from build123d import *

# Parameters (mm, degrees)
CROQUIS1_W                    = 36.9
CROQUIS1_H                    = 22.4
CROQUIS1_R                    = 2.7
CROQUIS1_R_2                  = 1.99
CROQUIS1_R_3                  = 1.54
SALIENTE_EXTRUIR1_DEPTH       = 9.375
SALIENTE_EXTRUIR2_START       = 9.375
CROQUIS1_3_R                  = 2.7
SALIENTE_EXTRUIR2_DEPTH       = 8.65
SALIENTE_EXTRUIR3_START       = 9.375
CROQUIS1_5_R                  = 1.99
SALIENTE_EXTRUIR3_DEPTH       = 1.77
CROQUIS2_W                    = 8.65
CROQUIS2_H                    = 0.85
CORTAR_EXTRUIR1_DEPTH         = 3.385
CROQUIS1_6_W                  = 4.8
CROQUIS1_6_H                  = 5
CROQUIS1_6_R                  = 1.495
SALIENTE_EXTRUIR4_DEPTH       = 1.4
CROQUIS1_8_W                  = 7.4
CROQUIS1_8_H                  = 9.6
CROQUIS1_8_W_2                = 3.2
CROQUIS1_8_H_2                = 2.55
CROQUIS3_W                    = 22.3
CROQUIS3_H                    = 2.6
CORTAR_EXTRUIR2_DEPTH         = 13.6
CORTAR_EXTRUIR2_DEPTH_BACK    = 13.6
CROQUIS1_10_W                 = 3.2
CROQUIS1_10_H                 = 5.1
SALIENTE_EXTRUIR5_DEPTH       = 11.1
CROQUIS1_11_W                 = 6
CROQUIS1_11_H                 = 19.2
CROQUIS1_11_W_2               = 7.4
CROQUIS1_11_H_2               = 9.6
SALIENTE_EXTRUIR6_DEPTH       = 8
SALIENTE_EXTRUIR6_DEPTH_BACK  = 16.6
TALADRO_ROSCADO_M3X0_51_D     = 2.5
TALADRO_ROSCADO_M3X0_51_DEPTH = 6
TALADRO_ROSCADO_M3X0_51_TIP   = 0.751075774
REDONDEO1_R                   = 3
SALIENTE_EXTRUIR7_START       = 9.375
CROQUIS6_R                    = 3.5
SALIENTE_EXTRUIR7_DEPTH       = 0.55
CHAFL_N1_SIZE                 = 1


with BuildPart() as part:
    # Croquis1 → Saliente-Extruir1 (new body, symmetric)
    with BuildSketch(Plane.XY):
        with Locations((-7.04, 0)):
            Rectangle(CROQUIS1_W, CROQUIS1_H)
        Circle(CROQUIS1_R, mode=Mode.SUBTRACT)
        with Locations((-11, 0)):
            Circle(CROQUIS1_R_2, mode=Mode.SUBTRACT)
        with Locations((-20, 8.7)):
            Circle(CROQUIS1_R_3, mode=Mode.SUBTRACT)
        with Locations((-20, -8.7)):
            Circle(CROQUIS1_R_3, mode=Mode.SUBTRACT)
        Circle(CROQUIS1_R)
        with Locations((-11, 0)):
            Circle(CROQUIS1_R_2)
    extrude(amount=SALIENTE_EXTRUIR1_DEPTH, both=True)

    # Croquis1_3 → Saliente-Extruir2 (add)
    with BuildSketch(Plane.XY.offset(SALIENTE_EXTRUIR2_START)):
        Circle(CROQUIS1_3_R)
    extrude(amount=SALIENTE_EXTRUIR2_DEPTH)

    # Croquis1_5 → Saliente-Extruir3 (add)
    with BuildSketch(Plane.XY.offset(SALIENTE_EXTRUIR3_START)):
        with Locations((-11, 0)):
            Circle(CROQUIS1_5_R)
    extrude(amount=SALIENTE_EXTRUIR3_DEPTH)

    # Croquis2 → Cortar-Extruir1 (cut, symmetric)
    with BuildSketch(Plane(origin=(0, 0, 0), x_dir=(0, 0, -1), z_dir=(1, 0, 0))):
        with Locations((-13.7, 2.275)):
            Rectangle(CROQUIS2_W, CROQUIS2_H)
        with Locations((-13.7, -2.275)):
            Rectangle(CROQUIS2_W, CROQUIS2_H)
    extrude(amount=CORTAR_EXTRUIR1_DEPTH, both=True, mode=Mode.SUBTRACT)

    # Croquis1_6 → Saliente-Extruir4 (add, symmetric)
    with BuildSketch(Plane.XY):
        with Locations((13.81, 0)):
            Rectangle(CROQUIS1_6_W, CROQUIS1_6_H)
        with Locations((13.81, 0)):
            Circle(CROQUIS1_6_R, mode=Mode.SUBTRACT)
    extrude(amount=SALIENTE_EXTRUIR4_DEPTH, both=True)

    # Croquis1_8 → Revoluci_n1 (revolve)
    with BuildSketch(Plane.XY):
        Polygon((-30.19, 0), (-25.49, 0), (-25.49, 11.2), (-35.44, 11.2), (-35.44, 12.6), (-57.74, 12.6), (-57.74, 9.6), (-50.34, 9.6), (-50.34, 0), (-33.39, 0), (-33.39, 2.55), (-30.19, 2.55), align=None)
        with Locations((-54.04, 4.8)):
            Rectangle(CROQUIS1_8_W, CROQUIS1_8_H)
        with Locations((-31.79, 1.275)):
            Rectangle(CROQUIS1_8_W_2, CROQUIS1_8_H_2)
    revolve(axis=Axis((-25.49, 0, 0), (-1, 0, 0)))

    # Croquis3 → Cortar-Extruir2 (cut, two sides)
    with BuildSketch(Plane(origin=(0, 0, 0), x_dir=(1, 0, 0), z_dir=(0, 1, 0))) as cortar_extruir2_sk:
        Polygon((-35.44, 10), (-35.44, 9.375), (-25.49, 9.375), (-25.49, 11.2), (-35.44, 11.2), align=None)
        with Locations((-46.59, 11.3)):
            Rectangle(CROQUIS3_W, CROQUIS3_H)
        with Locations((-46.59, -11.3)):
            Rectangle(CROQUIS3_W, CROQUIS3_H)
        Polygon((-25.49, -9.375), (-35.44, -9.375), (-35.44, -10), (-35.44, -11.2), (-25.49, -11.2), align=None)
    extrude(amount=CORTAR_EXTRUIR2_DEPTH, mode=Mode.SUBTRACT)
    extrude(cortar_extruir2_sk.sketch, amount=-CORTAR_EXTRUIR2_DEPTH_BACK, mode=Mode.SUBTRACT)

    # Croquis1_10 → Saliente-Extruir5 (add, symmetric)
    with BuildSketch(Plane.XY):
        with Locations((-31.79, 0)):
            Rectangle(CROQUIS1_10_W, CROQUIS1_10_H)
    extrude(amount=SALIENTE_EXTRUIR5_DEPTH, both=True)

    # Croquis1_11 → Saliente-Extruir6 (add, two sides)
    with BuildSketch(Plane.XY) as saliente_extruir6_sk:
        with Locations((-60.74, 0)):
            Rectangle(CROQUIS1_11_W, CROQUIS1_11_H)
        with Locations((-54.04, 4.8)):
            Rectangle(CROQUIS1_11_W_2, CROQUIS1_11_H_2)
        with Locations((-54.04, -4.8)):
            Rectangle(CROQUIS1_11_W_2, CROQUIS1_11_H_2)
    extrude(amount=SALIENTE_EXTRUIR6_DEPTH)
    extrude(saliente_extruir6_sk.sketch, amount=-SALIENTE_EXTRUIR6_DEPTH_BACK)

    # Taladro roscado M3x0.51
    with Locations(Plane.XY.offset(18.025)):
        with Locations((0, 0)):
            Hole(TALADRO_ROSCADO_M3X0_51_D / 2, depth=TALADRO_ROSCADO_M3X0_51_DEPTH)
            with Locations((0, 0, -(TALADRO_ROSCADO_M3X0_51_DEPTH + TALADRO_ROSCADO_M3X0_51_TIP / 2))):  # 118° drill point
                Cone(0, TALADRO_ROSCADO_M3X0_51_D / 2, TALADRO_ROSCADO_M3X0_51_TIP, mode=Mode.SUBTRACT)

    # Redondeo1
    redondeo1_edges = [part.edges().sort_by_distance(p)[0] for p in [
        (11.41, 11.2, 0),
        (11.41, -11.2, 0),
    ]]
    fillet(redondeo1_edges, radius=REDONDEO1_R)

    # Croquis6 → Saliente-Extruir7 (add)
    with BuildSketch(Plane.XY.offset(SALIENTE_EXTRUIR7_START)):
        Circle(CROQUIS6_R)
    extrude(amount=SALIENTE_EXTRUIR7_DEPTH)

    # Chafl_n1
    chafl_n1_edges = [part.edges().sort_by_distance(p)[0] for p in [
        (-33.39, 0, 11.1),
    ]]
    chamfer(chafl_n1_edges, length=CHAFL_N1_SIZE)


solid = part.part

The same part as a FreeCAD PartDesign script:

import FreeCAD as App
import Part
import Sketcher

V = App.Vector
Q = App.Units.Quantity


def edges_at(feature, points):
    """Names of the edges that pass closest to the given points."""
    edges = feature.Shape.Edges
    near = lambda p: min(range(len(edges)), key=lambda i: edges[i].distToShape(Part.Vertex(*p))[0])
    return sorted({f"Edge{near(p) + 1}" for p in points})


def add_polygon(sketch, points):
    """Adds a closed chain of lines whose ends are joined by coincident constraints."""
    first, n = sketch.GeometryCount, len(points)
    for a, b in zip(points, points[1:] + points[:1]):
        sketch.addGeometry(Part.LineSegment(App.Vector(*a, 0), App.Vector(*b, 0)), False)
    for i in range(n):
        sketch.addConstraint(Sketcher.Constraint("Coincident", first + i, 2, first + (i + 1) % n, 1))

doc = App.newDocument("Part")
body = doc.addObject("PartDesign::Body", "Body")

sketch1 = body.newObject("Sketcher::SketchObject", "Sketch")
sketch1.AttachmentSupport = (doc.getObject("XY_Plane"), [""])
sketch1.MapMode = "FlatFace"
add_polygon(sketch1, [(-25.5, 11.2), (-25.5, -11.2), (11.4, -11.2), (11.4, 11.2)])
sketch1.addGeometry(Part.Circle(V(-20, -8.7, 0), V(0, 0, 1), 1.5), False)
sketch1.addGeometry(Part.Circle(V(-20, 8.7, 0), V(0, 0, 1), 1.5), False)
sketch1.addConstraint([
    Sketcher.Constraint("Vertical", 0),
    Sketcher.Constraint("Horizontal", 1),
    Sketcher.Constraint("Vertical", 2),
    Sketcher.Constraint("Horizontal", 3),
    Sketcher.Constraint("Equal", 4, 5),
    Sketcher.Constraint("Symmetric", 4, 3, 5, 3, -1),
    Sketcher.Constraint("Diameter", 4, Q("3.08 mm")),
    Sketcher.Constraint("DistanceX", 1, 1, 1, 2, Q("36.9 mm")),
    Sketcher.Constraint("DistanceY", 0, 2, 0, 1, Q("22.4 mm")),
    Sketcher.Constraint("DistanceX", 4, 3, -1, 1, Q("20 mm")),
    Sketcher.Constraint("DistanceY", 4, 3, -1, 1, Q("8.7 mm")),
    Sketcher.Constraint("DistanceY", 0, 2, -1, 1, Q("11.2 mm")),
    Sketcher.Constraint("DistanceX", 0, 2, -1, 1, Q("25.49 mm")),
])
pad1 = body.newObject("PartDesign::Pad", "Pad")
pad1.Profile = sketch1
pad1.Length = 18.75
pad1.Midplane = True

sketch2 = body.newObject("Sketcher::SketchObject", "Sketch001")
sketch2.AttachmentSupport = (doc.getObject("XY_Plane"), [""])
sketch2.MapMode = "FlatFace"
sketch2.AttachmentOffset = App.Placement(V(0, 0, 9.375), App.Rotation())
sketch2.addGeometry(Part.Circle(V(0, 0, 0), V(0, 0, 1), 2.7), False)
sketch2.addConstraint([
    Sketcher.Constraint("Coincident", 0, 3, -1, 1),
    Sketcher.Constraint("Diameter", 0, Q("5.4 mm")),
])
pad2 = body.newObject("PartDesign::Pad", "Pad001")
pad2.Profile = sketch2
pad2.Length = 8.65

sketch3 = body.newObject("Sketcher::SketchObject", "Sketch002")
sketch3.AttachmentSupport = (doc.getObject("XY_Plane"), [""])
sketch3.MapMode = "FlatFace"
sketch3.AttachmentOffset = App.Placement(V(0, 0, 9.375), App.Rotation())
sketch3.addGeometry(Part.Circle(V(-11, 0, 0), V(0, 0, 1), 2), False)
sketch3.addConstraint([
    Sketcher.Constraint("PointOnObject", 0, 3, -1),
    Sketcher.Constraint("Diameter", 0, Q("3.98 mm")),
    Sketcher.Constraint("DistanceX", 0, 3, -1, 1, Q("11 mm")),
])
pad3 = body.newObject("PartDesign::Pad", "Pad002")
pad3.Profile = sketch3
pad3.Length = 1.77

sketch4 = body.newObject("Sketcher::SketchObject", "Sketch003")
sketch4.AttachmentSupport = (doc.getObject("YZ_Plane"), [""])
sketch4.MapMode = "FlatFace"
add_polygon(sketch4, [(2.7, 18), (1.9, 18), (1.9, 9.4), (2.7, 9.4)])
add_polygon(sketch4, [(-1.9, 18), (-2.7, 18), (-2.7, 9.4), (-1.9, 9.4)])
sketch4.addConstraint([
    Sketcher.Constraint("Horizontal", 0),
    Sketcher.Constraint("Vertical", 1),
    Sketcher.Constraint("Horizontal", 2),
    Sketcher.Constraint("Vertical", 3),
    Sketcher.Constraint("Horizontal", 4),
    Sketcher.Constraint("Vertical", 5),
    Sketcher.Constraint("Horizontal", 6),
    Sketcher.Constraint("Vertical", 7),
    Sketcher.Constraint("Symmetric", 3, 2, 4, 2, -2),
    Sketcher.Constraint("Symmetric", 1, 2, 6, 2, -2),
    Sketcher.Constraint("DistanceX", 0, 2, 0, 1, Q("0.85 mm")),
    Sketcher.Constraint("DistanceY", 1, 2, 1, 1, Q("8.65 mm")),
    Sketcher.Constraint("DistanceX", -1, 1, 2, 2, Q("2.7 mm")),
    Sketcher.Constraint("DistanceY", -1, 1, 0, 2, Q("18.025 mm")),
])
pocket1 = body.newObject("PartDesign::Pocket", "Pocket")
pocket1.Profile = sketch4
pocket1.Length = 6.77
pocket1.Midplane = True

sketch5 = body.newObject("Sketcher::SketchObject", "Sketch004")
sketch5.AttachmentSupport = (doc.getObject("XY_Plane"), [""])
sketch5.MapMode = "FlatFace"
add_polygon(sketch5, [(11.4, 2.5), (11.4, -2.5), (16.2, -2.5), (16.2, 2.5)])
sketch5.addGeometry(Part.Circle(V(13.8, 0, 0), V(0, 0, 1), 1.5), False)
sketch5.addConstraint([
    Sketcher.Constraint("Vertical", 0),
    Sketcher.Constraint("Horizontal", 1),
    Sketcher.Constraint("Vertical", 2),
    Sketcher.Constraint("Horizontal", 3),
    Sketcher.Constraint("PointOnObject", 4, 3, -1),
    Sketcher.Constraint("Diameter", 4, Q("2.99 mm")),
    Sketcher.Constraint("DistanceY", 0, 2, 0, 1, Q("5 mm")),
    Sketcher.Constraint("DistanceX", 1, 1, 1, 2, Q("4.8 mm")),
    Sketcher.Constraint("DistanceY", 0, 2, -1, 1, Q("2.5 mm")),
    Sketcher.Constraint("DistanceX", 0, 2, 4, 3, Q("2.4 mm")),
    Sketcher.Constraint("DistanceX", -1, 1, 4, 3, Q("13.81 mm")),
])
pad4 = body.newObject("PartDesign::Pad", "Pad003")
pad4.Profile = sketch5
pad4.Length = 2.8
pad4.Midplane = True

sketch6 = body.newObject("Sketcher::SketchObject", "Sketch005")
sketch6.AttachmentSupport = (doc.getObject("XY_Plane"), [""])
sketch6.MapMode = "FlatFace"
add_polygon(sketch6, [(-25.5, 0), (-25.5, 11.2), (-35.4, 11.2), (-35.4, 12.6), (-57.7, 12.6), (-57.7, 0)])
sketch6.addConstraint([
    Sketcher.Constraint("Vertical", 0),
    Sketcher.Constraint("Horizontal", 1),
    Sketcher.Constraint("Vertical", 2),
    Sketcher.Constraint("Horizontal", 3),
    Sketcher.Constraint("Vertical", 4),
    Sketcher.Constraint("Horizontal", 5),
    Sketcher.Constraint("PointOnObject", 4, 2, -1),
    Sketcher.Constraint("DistanceX", 3, 2, 3, 1, Q("22.3 mm")),
    Sketcher.Constraint("DistanceY", 0, 1, 0, 2, Q("11.2 mm")),
    Sketcher.Constraint("DistanceY", 2, 1, 2, 2, Q("1.4 mm")),
    Sketcher.Constraint("DistanceX", 1, 2, 1, 1, Q("9.95 mm")),
    Sketcher.Constraint("DistanceX", 0, 2, -1, 1, Q("25.49 mm")),
])
revolution = body.newObject("PartDesign::Revolution", "Revolution")
revolution.Profile = sketch6
revolution.ReferenceAxis = (sketch6, ["H_Axis"])
revolution.Angle = 360

sketch7 = body.newObject("Sketcher::SketchObject", "Sketch006")
sketch7.AttachmentSupport = (doc.getObject("XZ_Plane"), [""])
sketch7.MapMode = "FlatFace"
add_polygon(sketch7, [(-35.4, -9.4), (-25.5, -9.4), (-25.5, -11.2), (-35.4, -11.2), (-35.4, -12.6), (-57.7, -12.6), (-57.7, -10), (-35.4, -10)])
add_polygon(sketch7, [(-57.7, 10), (-57.7, 12.6), (-35.4, 12.6), (-35.4, 11.2), (-25.5, 11.2), (-25.5, 9.4), (-35.4, 9.4), (-35.4, 10)])
sketch7.addConstraint([
    Sketcher.Constraint("Horizontal", 0),
    Sketcher.Constraint("Vertical", 1),
    Sketcher.Constraint("Horizontal", 2),
    Sketcher.Constraint("Vertical", 3),
    Sketcher.Constraint("Horizontal", 4),
    Sketcher.Constraint("Vertical", 5),
    Sketcher.Constraint("Horizontal", 6),
    Sketcher.Constraint("Vertical", 7),
    Sketcher.Constraint("Vertical", 8),
    Sketcher.Constraint("Horizontal", 9),
    Sketcher.Constraint("Vertical", 10),
    Sketcher.Constraint("Horizontal", 11),
    Sketcher.Constraint("Vertical", 12),
    Sketcher.Constraint("Horizontal", 13),
    Sketcher.Constraint("Vertical", 14),
    Sketcher.Constraint("Horizontal", 15),
    Sketcher.Constraint("Symmetric", 4, 2, 8, 2, -1),
    Sketcher.Constraint("Symmetric", 2, 2, 10, 2, -1),
    Sketcher.Constraint("Symmetric", 0, 2, 12, 2, -1),
    Sketcher.Constraint("Symmetric", 6, 2, 14, 2, -1),
    Sketcher.Constraint("Vertical", 3, 2, 6, 2),
    Sketcher.Constraint("DistanceX", 4, 2, 4, 1, Q("22.3 mm")),
    Sketcher.Constraint("DistanceY", 3, 2, 3, 1, Q("1.4 mm")),
    Sketcher.Constraint("DistanceY", 5, 1, 5, 2, Q("2.6 mm")),
    Sketcher.Constraint("DistanceY", 5, 2, -1, 1, Q("10 mm")),
    Sketcher.Constraint("DistanceX", 0, 1, 0, 2, Q("9.95 mm")),
    Sketcher.Constraint("DistanceY", 1, 2, 1, 1, Q("1.825 mm")),
    Sketcher.Constraint("DistanceX", 0, 2, -1, 1, Q("25.49 mm")),
])
pocket2 = body.newObject("PartDesign::Pocket", "Pocket001")
pocket2.Profile = sketch7
pocket2.Type = "ThroughAll"
pocket2.Midplane = True

sketch8 = body.newObject("Sketcher::SketchObject", "Sketch007")
sketch8.AttachmentSupport = (doc.getObject("XY_Plane"), [""])
sketch8.MapMode = "FlatFace"
add_polygon(sketch8, [(-33.4, 2.5), (-33.4, -2.5), (-30.2, -2.5), (-30.2, 2.5)])
sketch8.addConstraint([
    Sketcher.Constraint("Vertical", 0),
    Sketcher.Constraint("Horizontal", 1),
    Sketcher.Constraint("Vertical", 2),
    Sketcher.Constraint("Horizontal", 3),
    Sketcher.Constraint("DistanceX", 1, 1, 1, 2, Q("3.2 mm")),
    Sketcher.Constraint("DistanceY", 0, 2, 0, 1, Q("5.1 mm")),
    Sketcher.Constraint("DistanceX", 0, 2, -1, 1, Q("33.39 mm")),
    Sketcher.Constraint("DistanceY", 0, 2, -1, 1, Q("2.55 mm")),
])
pad5 = body.newObject("PartDesign::Pad", "Pad004")
pad5.Profile = sketch8
pad5.Length = 22.2
pad5.Midplane = True

sketch9 = body.newObject("Sketcher::SketchObject", "Sketch008")
sketch9.AttachmentSupport = (doc.getObject("XY_Plane"), [""])
sketch9.MapMode = "FlatFace"
add_polygon(sketch9, [(-64, 10), (-64, -10), (-50, -10), (-50, 10)])
sketch9.addConstraint([
    Sketcher.Constraint("Vertical", 0),
    Sketcher.Constraint("Horizontal", 1),
    Sketcher.Constraint("Vertical", 2),
    Sketcher.Constraint("Horizontal", 3),
    Sketcher.Constraint("DistanceX", 1, 1, 1, 2, Q("13.4 mm")),
    Sketcher.Constraint("DistanceY", 0, 2, 0, 1, Q("19.2 mm")),
    Sketcher.Constraint("DistanceY", 0, 2, -1, 1, Q("9.6 mm")),
    Sketcher.Constraint("DistanceX", 0, 2, -1, 1, Q("63.74 mm")),
])
pad6 = body.newObject("PartDesign::Pad", "Pad005")
pad6.Profile = sketch9
pad6.Type = "TwoLengths"
pad6.Length = 8
pad6.Length2 = 16.6

sketch10 = body.newObject("Sketcher::SketchObject", "Sketch009")
sketch10.AttachmentSupport = (doc.getObject("XY_Plane"), [""])
sketch10.MapMode = "FlatFace"
sketch10.AttachmentOffset = App.Placement(V(0, 0, 18.025), App.Rotation())
sketch10.addGeometry(Part.Circle(V(0, 0, 0), V(0, 0, 1), 1.2), False)
sketch10.addConstraint([
    Sketcher.Constraint("Coincident", 0, 3, -1, 1),
    Sketcher.Constraint("Diameter", 0, Q("2.5 mm")),
])
doc.recompute()
hole = body.newObject("PartDesign::Hole", "Hole")
hole.Profile = sketch10
hole.ThreadType = "None"
hole.Diameter = 2.5
hole.DepthType = "Dimension"
hole.Depth = 6
hole.DrillPoint = "Angled"
hole.DrillPointAngle = 118
doc.recompute()

fillet = body.newObject("PartDesign::Fillet", "Fillet")
fillet.Base = (hole, edges_at(hole, [(11.41, 11.2, 0), (11.41, -11.2, 0)]))
fillet.Radius = 3

sketch11 = body.newObject("Sketcher::SketchObject", "Sketch010")
sketch11.AttachmentSupport = (doc.getObject("XY_Plane"), [""])
sketch11.MapMode = "FlatFace"
sketch11.AttachmentOffset = App.Placement(V(0, 0, 9.375), App.Rotation())
sketch11.addGeometry(Part.Circle(V(0, 0, 0), V(0, 0, 1), 3.5), False)
sketch11.addConstraint([
    Sketcher.Constraint("Coincident", 0, 3, -1, 1),
    Sketcher.Constraint("Diameter", 0, Q("7 mm")),
])
pad7 = body.newObject("PartDesign::Pad", "Pad006")
pad7.Profile = sketch11
pad7.Length = 0.55
doc.recompute()

chamfer = body.newObject("PartDesign::Chamfer", "Chamfer")
chamfer.Base = (pad7, edges_at(pad7, [(-33.39, 0, 11.1)]))
chamfer.Size = 1

doc.recompute()
